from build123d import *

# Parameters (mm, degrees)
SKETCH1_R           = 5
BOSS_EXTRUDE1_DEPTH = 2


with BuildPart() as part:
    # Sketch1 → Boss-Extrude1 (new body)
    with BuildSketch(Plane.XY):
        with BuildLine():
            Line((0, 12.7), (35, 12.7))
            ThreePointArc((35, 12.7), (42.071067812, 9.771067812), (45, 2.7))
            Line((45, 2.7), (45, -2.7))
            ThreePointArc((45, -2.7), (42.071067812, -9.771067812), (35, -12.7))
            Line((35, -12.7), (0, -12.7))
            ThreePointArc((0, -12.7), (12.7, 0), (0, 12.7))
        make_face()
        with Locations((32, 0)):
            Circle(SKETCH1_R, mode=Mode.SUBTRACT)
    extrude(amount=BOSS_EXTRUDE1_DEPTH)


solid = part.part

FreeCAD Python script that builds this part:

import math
import FreeCAD as App
import Part
import Sketcher
from FreeCAD import Vector

doc = App.newDocument("Part")
params = doc.addObject("Spreadsheet::Sheet", "Params")
for row, (alias, value) in enumerate([
    ("sketch1_diameter", "10 mm"),
    ("sketch1_radius", "10 mm"),
    ("sketch1_radius2", "12.7 mm"),
    ("sketch1_width", "35 mm"),
    ("pad1_length", "2 mm"),
], start=1):
    params.set(f"A{row}", alias)
    params.set(f"B{row}", "=" + value)
    params.setAlias(f"B{row}", alias)

body = doc.addObject("PartDesign::Body", "Body")

# Sketch on XY plane
sketch1 = body.newObject("Sketcher::SketchObject", "Sketch")
sketch1.AttachmentSupport = (doc.getObject("XY_Plane"), [""])
sketch1.MapMode = "FlatFace"
sketch1.addGeometry(Part.LineSegment(Vector(35, 13, 0), Vector(0, 13, 0)), False)
sketch1.addGeometry(Part.ArcOfCircle(Part.Circle(Vector(0, 0, 0), Vector(0, 0, 1), 13), math.radians(-90), math.radians(90)), False)
sketch1.addGeometry(Part.LineSegment(Vector(0, -13, 0), Vector(35, -13, 0)), False)
sketch1.addGeometry(Part.ArcOfCircle(Part.Circle(Vector(35, -3, 0), Vector(0, 0, 1), 10), math.radians(-90), math.radians(0)), False)
sketch1.addGeometry(Part.LineSegment(Vector(45, -3, 0), Vector(45, 3, 0)), False)
sketch1.addGeometry(Part.ArcOfCircle(Part.Circle(Vector(35, 3, 0), Vector(0, 0, 1), 10), math.radians(0), math.radians(90)), False)
sketch1.addGeometry(Part.Circle(Vector(32, 0, 0), Vector(0, 0, 1), 5), False)
sketch1.addConstraint(Sketcher.Constraint("Tangent", 0, 2, 1, 2))
sketch1.addConstraint(Sketcher.Constraint("Tangent", 1, 1, 2, 1))
sketch1.addConstraint(Sketcher.Constraint("Tangent", 2, 2, 3, 1))
sketch1.addConstraint(Sketcher.Constraint("Tangent", 3, 2, 4, 1))
sketch1.addConstraint(Sketcher.Constraint("Tangent", 4, 2, 5, 1))
sketch1.addConstraint(Sketcher.Constraint("Tangent", 5, 2, 0, 1))
sketch1.addConstraint(Sketcher.Constraint("Horizontal", 0))
sketch1.addConstraint(Sketcher.Constraint("Horizontal", 2))
sketch1.addConstraint(Sketcher.Constraint("Vertical", 4))
sketch1.addConstraint(Sketcher.Constraint("Coincident", 1, 3, -1, 1))
sketch1.addConstraint(Sketcher.Constraint("Equal", 3, 5))
sketch1.addConstraint(Sketcher.Constraint("PointOnObject", 6, 3, -1))
sketch1.addConstraint(Sketcher.Constraint("Diameter", 6, 10.0))
sketch1.addConstraint(Sketcher.Constraint("Radius", 3, 10.0))
sketch1.addConstraint(Sketcher.Constraint("Radius", 1, 12.7))
sketch1.addConstraint(Sketcher.Constraint("DistanceX", 0, 2, 0, 1, 35.0))
sketch1.addConstraint(Sketcher.Constraint("DistanceX", -1, 1, 6, 3, 32.0))
sketch1.setExpression("Constraints[12]", "Params.sketch1_diameter")
sketch1.setExpression("Constraints[13]", "Params.sketch1_radius")
sketch1.setExpression("Constraints[14]", "Params.sketch1_radius2")
sketch1.setExpression("Constraints[15]", "Params.sketch1_width")
pad1 = body.newObject("PartDesign::Pad", "Pad")
pad1.Profile = sketch1
pad1.setExpression("Length", "Params.pad1_length")

doc.recompute()
